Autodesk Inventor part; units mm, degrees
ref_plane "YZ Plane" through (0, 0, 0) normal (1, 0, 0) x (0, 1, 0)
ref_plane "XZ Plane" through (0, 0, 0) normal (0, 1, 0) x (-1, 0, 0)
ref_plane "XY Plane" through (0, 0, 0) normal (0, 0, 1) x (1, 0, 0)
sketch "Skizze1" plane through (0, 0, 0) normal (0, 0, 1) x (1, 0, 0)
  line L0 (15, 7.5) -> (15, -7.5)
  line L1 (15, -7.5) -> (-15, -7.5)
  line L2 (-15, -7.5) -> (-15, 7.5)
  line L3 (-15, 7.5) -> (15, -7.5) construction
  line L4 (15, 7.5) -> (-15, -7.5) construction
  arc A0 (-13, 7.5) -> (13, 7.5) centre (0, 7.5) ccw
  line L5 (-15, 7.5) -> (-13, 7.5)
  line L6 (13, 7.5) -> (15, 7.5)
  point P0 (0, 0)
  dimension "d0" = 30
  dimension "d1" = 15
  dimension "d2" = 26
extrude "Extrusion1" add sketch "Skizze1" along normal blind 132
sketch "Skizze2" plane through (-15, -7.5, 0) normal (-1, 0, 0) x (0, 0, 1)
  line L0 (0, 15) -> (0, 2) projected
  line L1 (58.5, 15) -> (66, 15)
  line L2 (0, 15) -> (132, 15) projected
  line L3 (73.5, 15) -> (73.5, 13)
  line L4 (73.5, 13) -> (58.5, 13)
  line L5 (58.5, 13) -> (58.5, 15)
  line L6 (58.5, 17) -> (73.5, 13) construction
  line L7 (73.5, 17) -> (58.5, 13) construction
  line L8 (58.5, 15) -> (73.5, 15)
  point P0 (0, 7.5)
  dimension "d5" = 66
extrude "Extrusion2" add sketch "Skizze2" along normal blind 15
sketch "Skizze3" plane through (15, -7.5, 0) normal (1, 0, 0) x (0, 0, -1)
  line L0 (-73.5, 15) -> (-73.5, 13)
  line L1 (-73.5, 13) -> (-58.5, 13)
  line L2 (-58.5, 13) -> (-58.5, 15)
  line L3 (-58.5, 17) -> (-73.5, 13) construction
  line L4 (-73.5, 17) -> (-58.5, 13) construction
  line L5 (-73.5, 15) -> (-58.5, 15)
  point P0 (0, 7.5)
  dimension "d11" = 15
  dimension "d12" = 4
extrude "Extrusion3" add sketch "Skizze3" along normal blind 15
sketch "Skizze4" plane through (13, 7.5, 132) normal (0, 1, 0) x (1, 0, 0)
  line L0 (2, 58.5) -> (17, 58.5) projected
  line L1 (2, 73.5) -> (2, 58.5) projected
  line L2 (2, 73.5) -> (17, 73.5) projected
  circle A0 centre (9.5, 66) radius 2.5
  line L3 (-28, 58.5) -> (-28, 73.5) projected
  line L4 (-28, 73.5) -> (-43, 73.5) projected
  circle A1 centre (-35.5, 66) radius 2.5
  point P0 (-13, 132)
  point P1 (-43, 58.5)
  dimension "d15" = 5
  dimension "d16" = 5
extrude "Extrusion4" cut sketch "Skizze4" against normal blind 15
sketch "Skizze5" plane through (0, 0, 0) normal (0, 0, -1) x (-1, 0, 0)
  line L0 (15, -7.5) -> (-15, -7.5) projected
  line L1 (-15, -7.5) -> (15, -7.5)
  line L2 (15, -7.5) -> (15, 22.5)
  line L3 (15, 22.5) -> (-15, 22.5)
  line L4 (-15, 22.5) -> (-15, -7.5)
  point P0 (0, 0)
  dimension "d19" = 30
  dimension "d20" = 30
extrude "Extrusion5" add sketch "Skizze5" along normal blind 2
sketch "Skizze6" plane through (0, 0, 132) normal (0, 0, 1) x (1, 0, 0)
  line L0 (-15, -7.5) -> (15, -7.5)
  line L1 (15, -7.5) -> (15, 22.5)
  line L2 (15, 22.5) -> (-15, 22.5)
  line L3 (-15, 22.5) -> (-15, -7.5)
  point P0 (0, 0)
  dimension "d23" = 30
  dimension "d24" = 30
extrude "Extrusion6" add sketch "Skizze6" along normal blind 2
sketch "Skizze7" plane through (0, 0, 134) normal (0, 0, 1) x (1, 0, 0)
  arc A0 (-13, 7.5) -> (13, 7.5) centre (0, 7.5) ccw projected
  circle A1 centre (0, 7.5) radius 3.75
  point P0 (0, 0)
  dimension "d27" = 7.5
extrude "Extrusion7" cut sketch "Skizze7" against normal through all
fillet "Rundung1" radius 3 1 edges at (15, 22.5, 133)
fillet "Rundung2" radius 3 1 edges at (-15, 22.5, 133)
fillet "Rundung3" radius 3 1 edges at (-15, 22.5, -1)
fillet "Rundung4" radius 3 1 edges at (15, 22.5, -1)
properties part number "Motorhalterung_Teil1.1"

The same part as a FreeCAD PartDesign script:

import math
import FreeCAD as App
import Part
import Sketcher

V = App.Vector


def edges_at(feature, points):
    """Names of the edges that pass closest to the given points."""
    edges = feature.Shape.Edges
    near = lambda p: min(range(len(edges)), key=lambda i: edges[i].distToShape(Part.Vertex(*p))[0])
    return sorted({f"Edge{near(p) + 1}" for p in points})


def add_polygon(sketch, points):
    """Adds a closed chain of lines whose ends are joined by coincident constraints."""
    first, n = sketch.GeometryCount, len(points)
    for a, b in zip(points, points[1:] + points[:1]):
        sketch.addGeometry(Part.LineSegment(App.Vector(*a, 0), App.Vector(*b, 0)), False)
    for i in range(n):
        sketch.addConstraint(Sketcher.Constraint("Coincident", first + i, 2, first + (i + 1) % n, 1))

doc = App.newDocument("Part")
body = doc.addObject("PartDesign::Body", "Body")

# Sketch on XY plane
sketch1 = body.newObject("Sketcher::SketchObject", "Sketch")
sketch1.AttachmentSupport = (doc.getObject("XY_Plane"), [""])
sketch1.MapMode = "FlatFace"
sketch1.addGeometry(Part.LineSegment(V(15, -7.5, 0), V(15, 7.5, 0)), False)
sketch1.addGeometry(Part.LineSegment(V(15, 7.5, 0), V(13, 7.5, 0)), False)
sketch1.addGeometry(Part.ArcOfCircle(Part.Circle(V(0, 7.5, 0), V(0, 0, 1), 13), math.radians(180), math.radians(360)), False)
sketch1.addGeometry(Part.LineSegment(V(-13, 7.5, 0), V(-15, 7.5, 0)), False)
sketch1.addGeometry(Part.LineSegment(V(-15, 7.5, 0), V(-15, -7.5, 0)), False)
sketch1.addGeometry(Part.LineSegment(V(-15, -7.5, 0), V(15, -7.5, 0)), False)
sketch1.addConstraint(Sketcher.Constraint("Coincident", 0, 2, 1, 1))
sketch1.addConstraint(Sketcher.Constraint("Coincident", 1, 2, 2, 2))
sketch1.addConstraint(Sketcher.Constraint("Coincident", 2, 1, 3, 1))
sketch1.addConstraint(Sketcher.Constraint("Coincident", 3, 2, 4, 1))
sketch1.addConstraint(Sketcher.Constraint("Coincident", 4, 2, 5, 1))
sketch1.addConstraint(Sketcher.Constraint("Coincident", 5, 2, 0, 1))
sketch1.addConstraint(Sketcher.Constraint("Vertical", 0))
sketch1.addConstraint(Sketcher.Constraint("Horizontal", 1))
sketch1.addConstraint(Sketcher.Constraint("Horizontal", 3))
sketch1.addConstraint(Sketcher.Constraint("Vertical", 4))
sketch1.addConstraint(Sketcher.Constraint("Horizontal", 5))
sketch1.addConstraint(Sketcher.Constraint("Symmetric", 0, 2, 4, 2, -1, 1))
sketch1.addConstraint(Sketcher.Constraint("Symmetric", 1, 2, 2, 1, -2))
sketch1.addConstraint(Sketcher.Constraint("Horizontal", 2, 3, 0, 2))
sketch1.addConstraint(Sketcher.Constraint("Radius", 2, 13.0))
sketch1.addConstraint(Sketcher.Constraint("DistanceX", 5, 1, 5, 2, 30.0))
sketch1.addConstraint(Sketcher.Constraint("DistanceY", 0, 1, 0, 2, 15.0))
pad1 = body.newObject("PartDesign::Pad", "Pad")
pad1.Profile = sketch1
pad1.Length = 132

# Sketch on YZ plane
sketch2 = body.newObject("Sketcher::SketchObject", "Sketch001")
sketch2.AttachmentSupport = (doc.getObject("YZ_Plane"), [""])
sketch2.MapMode = "FlatFace"
sketch2.AttachmentOffset = App.Placement(V(0, 0, -15), App.Rotation())
add_polygon(sketch2, [(7.5, 73.5), (7.5, 58.5), (5.5, 58.5), (5.5, 73.5)])  # lines 0-3
sketch2.addConstraint(Sketcher.Constraint("Vertical", 0))
sketch2.addConstraint(Sketcher.Constraint("Horizontal", 1))
sketch2.addConstraint(Sketcher.Constraint("Vertical", 2))
sketch2.addConstraint(Sketcher.Constraint("Horizontal", 3))
sketch2.addConstraint(Sketcher.Constraint("DistanceX", 1, 2, 1, 1, 2.0))
sketch2.addConstraint(Sketcher.Constraint("DistanceY", 0, 2, 0, 1, 15.0))
sketch2.addConstraint(Sketcher.Constraint("DistanceX", -1, 1, 0, 2, 7.5))
sketch2.addConstraint(Sketcher.Constraint("DistanceY", -1, 1, 0, 2, 58.5))
pad2 = body.newObject("PartDesign::Pad", "Pad001")
pad2.Profile = sketch2
pad2.Length = 15
pad2.Reversed = True

# Sketch on YZ plane
sketch3 = body.newObject("Sketcher::SketchObject", "Sketch002")
sketch3.AttachmentSupport = (doc.getObject("YZ_Plane"), [""])
sketch3.MapMode = "FlatFace"
sketch3.AttachmentOffset = App.Placement(V(0, 0, 15), App.Rotation())
add_polygon(sketch3, [(7.5, 58.5), (7.5, 73.5), (5.5, 73.5), (5.5, 58.5)])  # lines 0-3
sketch3.addConstraint(Sketcher.Constraint("Vertical", 0))
sketch3.addConstraint(Sketcher.Constraint("Horizontal", 1))
sketch3.addConstraint(Sketcher.Constraint("Vertical", 2))
sketch3.addConstraint(Sketcher.Constraint("Horizontal", 3))
sketch3.addConstraint(Sketcher.Constraint("DistanceY", 0, 1, 0, 2, 15.0))
sketch3.addConstraint(Sketcher.Constraint("DistanceX", 1, 2, 1, 1, 2.0))
sketch3.addConstraint(Sketcher.Constraint("DistanceX", -1, 1, 0, 2, 7.5))
sketch3.addConstraint(Sketcher.Constraint("DistanceY", -1, 1, 0, 2, 73.5))
pad3 = body.newObject("PartDesign::Pad", "Pad002")
pad3.Profile = sketch3
pad3.Length = 15

# Sketch on XZ plane
sketch4 = body.newObject("Sketcher::SketchObject", "Sketch003")
sketch4.AttachmentSupport = (doc.getObject("XZ_Plane"), [""])
sketch4.MapMode = "FlatFace"
sketch4.AttachmentOffset = App.Placement(V(0, 0, -7.5), App.Rotation())
sketch4.addGeometry(Part.Circle(V(22.5, 66, 0), V(0, 0, 1), 2.5), False)
sketch4.addGeometry(Part.Circle(V(-22.5, 66, 0), V(0, 0, 1), 2.5), False)
sketch4.addConstraint(Sketcher.Constraint("Equal", 0, 1))
sketch4.addConstraint(Sketcher.Constraint("Symmetric", 0, 3, 1, 3, -2))
sketch4.addConstraint(Sketcher.Constraint("Diameter", 0, 5.0))
sketch4.addConstraint(Sketcher.Constraint("DistanceY", -1, 1, 0, 3, 66.0))
sketch4.addConstraint(Sketcher.Constraint("DistanceX", 1, 3, 0, 3, 45.0))
pocket1 = body.newObject("PartDesign::Pocket", "Pocket")
pocket1.Profile = sketch4
pocket1.Length = 15
pocket1.Reversed = True

# Sketch on XY plane
sketch5 = body.newObject("Sketcher::SketchObject", "Sketch004")
sketch5.AttachmentSupport = (doc.getObject("XY_Plane"), [""])
sketch5.MapMode = "FlatFace"
add_polygon(sketch5, [(15, -8), (-15, -8), (-15, 22), (15, 22)])  # lines 0-3
sketch5.addConstraint(Sketcher.Constraint("Horizontal", 0))
sketch5.addConstraint(Sketcher.Constraint("Vertical", 1))
sketch5.addConstraint(Sketcher.Constraint("Horizontal", 2))
sketch5.addConstraint(Sketcher.Constraint("Vertical", 3))
sketch5.addConstraint(Sketcher.Constraint("Equal", 2, 1))
sketch5.addConstraint(Sketcher.Constraint("DistanceX", 0, 2, 0, 1, 30.0))
sketch5.addConstraint(Sketcher.Constraint("DistanceX", 0, 2, -1, 1, 15.0))
sketch5.addConstraint(Sketcher.Constraint("DistanceY", 0, 2, -1, 1, 7.5))
pad4 = body.newObject("PartDesign::Pad", "Pad003")
pad4.Profile = sketch5
pad4.Length = 2
pad4.Reversed = True

# Sketch on XY plane
sketch6 = body.newObject("Sketcher::SketchObject", "Sketch005")
sketch6.AttachmentSupport = (doc.getObject("XY_Plane"), [""])
sketch6.MapMode = "FlatFace"
sketch6.AttachmentOffset = App.Placement(V(0, 0, 132), App.Rotation())
add_polygon(sketch6, [(-15, 22), (-15, -8), (15, -8), (15, 22)])  # lines 0-3
sketch6.addConstraint(Sketcher.Constraint("Vertical", 0))
sketch6.addConstraint(Sketcher.Constraint("Horizontal", 1))
sketch6.addConstraint(Sketcher.Constraint("Vertical", 2))
sketch6.addConstraint(Sketcher.Constraint("Horizontal", 3))
sketch6.addConstraint(Sketcher.Constraint("Equal", 3, 0))
sketch6.addConstraint(Sketcher.Constraint("DistanceX", 1, 1, 1, 2, 30.0))
sketch6.addConstraint(Sketcher.Constraint("DistanceX", 0, 2, -1, 1, 15.0))
sketch6.addConstraint(Sketcher.Constraint("DistanceY", 0, 2, -1, 1, 7.5))
pad5 = body.newObject("PartDesign::Pad", "Pad004")
pad5.Profile = sketch6
pad5.Length = 2

# Sketch on XY plane
sketch7 = body.newObject("Sketcher::SketchObject", "Sketch006")
sketch7.AttachmentSupport = (doc.getObject("XY_Plane"), [""])
sketch7.MapMode = "FlatFace"
sketch7.AttachmentOffset = App.Placement(V(0, 0, 134), App.Rotation())
sketch7.addGeometry(Part.Circle(V(0, 7.5, 0), V(0, 0, 1), 3.8), False)
sketch7.addConstraint(Sketcher.Constraint("PointOnObject", 0, 3, -2))
sketch7.addConstraint(Sketcher.Constraint("Diameter", 0, 7.5))
sketch7.addConstraint(Sketcher.Constraint("DistanceY", -1, 1, 0, 3, 7.5))
pocket2 = body.newObject("PartDesign::Pocket", "Pocket001")
pocket2.Profile = sketch7
pocket2.Type = "ThroughAll"
doc.recompute()

fillet = body.newObject("PartDesign::Fillet", "Fillet")
fillet.Base = (pocket2, edges_at(pocket2, [(15, 22.5, 133)]))
fillet.Radius = 3
doc.recompute()

fillet2 = body.newObject("PartDesign::Fillet", "Fillet001")
fillet2.Base = (fillet, edges_at(fillet, [(-15, 22.5, 133)]))
fillet2.Radius = 3
doc.recompute()

fillet3 = body.newObject("PartDesign::Fillet", "Fillet002")
fillet3.Base = (fillet2, edges_at(fillet2, [(-15, 22.5, -1)]))
fillet3.Radius = 3
doc.recompute()

fillet4 = body.newObject("PartDesign::Fillet", "Fillet003")
fillet4.Base = (fillet3, edges_at(fillet3, [(15, 22.5, -1)]))
fillet4.Radius = 3

doc.recompute()
